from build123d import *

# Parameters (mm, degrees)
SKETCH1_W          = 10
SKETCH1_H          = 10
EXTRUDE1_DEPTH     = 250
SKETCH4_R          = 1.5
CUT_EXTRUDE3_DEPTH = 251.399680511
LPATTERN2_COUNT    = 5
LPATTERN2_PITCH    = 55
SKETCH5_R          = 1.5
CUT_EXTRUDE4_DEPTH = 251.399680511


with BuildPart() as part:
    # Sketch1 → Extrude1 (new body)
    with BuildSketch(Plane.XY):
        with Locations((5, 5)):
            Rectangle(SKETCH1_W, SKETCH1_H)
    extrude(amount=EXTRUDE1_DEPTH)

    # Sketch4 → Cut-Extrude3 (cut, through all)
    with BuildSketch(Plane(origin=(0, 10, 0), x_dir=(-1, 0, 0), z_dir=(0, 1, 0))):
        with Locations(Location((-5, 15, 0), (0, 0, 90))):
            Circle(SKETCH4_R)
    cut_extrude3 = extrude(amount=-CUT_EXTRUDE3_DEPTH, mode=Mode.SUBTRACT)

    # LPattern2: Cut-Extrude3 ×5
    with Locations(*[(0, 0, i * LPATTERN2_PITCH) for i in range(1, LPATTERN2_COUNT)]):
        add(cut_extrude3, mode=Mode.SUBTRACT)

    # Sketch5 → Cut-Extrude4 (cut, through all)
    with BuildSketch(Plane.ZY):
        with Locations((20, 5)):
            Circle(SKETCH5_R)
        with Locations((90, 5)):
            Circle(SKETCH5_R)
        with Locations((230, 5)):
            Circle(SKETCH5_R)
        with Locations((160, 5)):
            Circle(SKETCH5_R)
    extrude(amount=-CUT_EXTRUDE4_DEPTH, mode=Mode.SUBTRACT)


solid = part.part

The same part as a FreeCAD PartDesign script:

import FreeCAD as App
import Part
import Sketcher


def add_polygon(sketch, points):
    """Adds a closed chain of lines whose ends are joined by coincident constraints."""
    first, n = sketch.GeometryCount, len(points)
    for a, b in zip(points, points[1:] + points[:1]):
        sketch.addGeometry(Part.LineSegment(App.Vector(*a, 0), App.Vector(*b, 0)), False)
    for i in range(n):
        sketch.addConstraint(Sketcher.Constraint("Coincident", first + i, 2, first + (i + 1) % n, 1))

doc = App.newDocument("Part")
body = doc.addObject("PartDesign::Body", "Body")

sketch1 = doc.addObject("Sketcher::SketchObject", "Sketch")
body.addObject(sketch1)
sketch1.AttachmentSupport = (doc.XY_Plane, [""])
sketch1.MapMode = "FlatFace"
add_polygon(sketch1, [(0, 10), (0, 0), (10, 0), (10, 10)])
sketch1.addConstraint([
    Sketcher.Constraint("Vertical", 0),
    Sketcher.Constraint("Horizontal", 1),
    Sketcher.Constraint("Vertical", 2),
    Sketcher.Constraint("Horizontal", 3),
    Sketcher.Constraint("Coincident", 0, 2, -1, 1),
    Sketcher.Constraint("Equal", 3, 0),
    Sketcher.Constraint("DistanceX", 1, 1, 1, 2, 10.0),
])
pad1 = doc.addObject("PartDesign::Pad", "Pad")
body.addObject(pad1)
pad1.Profile = sketch1
pad1.Length = 250

sketch2 = doc.addObject("Sketcher::SketchObject", "Sketch001")
body.addObject(sketch2)
sketch2.AttachmentSupport = (doc.XZ_Plane, [""])
sketch2.MapMode = "FlatFace"
sketch2.AttachmentOffset = App.Placement(App.Vector(0, 0, -10), App.Rotation())
sketch2.addGeometry(Part.Circle(App.Vector(5, 15, 0), App.Vector(0, 0, 1), 1.5), False)
sketch2.addConstraint([
    Sketcher.Constraint("Diameter", 0, 3.0),
    Sketcher.Constraint("DistanceX", -1, 1, 0, 3, 5.0),
    Sketcher.Constraint("DistanceY", -1, 1, 0, 3, 15.0),
])
pocket1 = doc.addObject("PartDesign::Pocket", "Pocket")
body.addObject(pocket1)
pocket1.Profile = sketch2
pocket1.Type = "ThroughAll"
pocket1.Reversed = True
doc.recompute()

linearpattern = doc.addObject("PartDesign::LinearPattern", "LinearPattern")
body.addObject(linearpattern)
linearpattern.Originals = [pocket1]
linearpattern.Direction = (doc.Z_Axis, [""])
linearpattern.Mode = "offset"
linearpattern.Offset = 55
linearpattern.Occurrences = 5
body.Tip = linearpattern

sketch3 = doc.addObject("Sketcher::SketchObject", "Sketch002")
body.addObject(sketch3)
sketch3.AttachmentSupport = (doc.YZ_Plane, [""])
sketch3.MapMode = "FlatFace"
sketch3.addGeometry([
    Part.Circle(App.Vector(5, 20, 0), App.Vector(0, 0, 1), 1.5),
    Part.Circle(App.Vector(5, 90, 0), App.Vector(0, 0, 1), 1.5),
    Part.Circle(App.Vector(5, 230, 0), App.Vector(0, 0, 1), 1.5),
    Part.Circle(App.Vector(5, 160, 0), App.Vector(0, 0, 1), 1.5),
], False)
sketch3.addConstraint([
    Sketcher.Constraint("Equal", 0, 1),
    Sketcher.Constraint("Equal", 1, 2),
    Sketcher.Constraint("Equal", 2, 3),
    Sketcher.Constraint("Vertical", 0, 3, 1, 3),
    Sketcher.Constraint("Vertical", 1, 3, 2, 3),
    Sketcher.Constraint("Vertical", 2, 3, 3, 3),
    Sketcher.Constraint("Diameter", 0, 3.0),
    Sketcher.Constraint("DistanceX", -1, 1, 0, 3, 5.0),
    Sketcher.Constraint("DistanceY", -1, 1, 0, 3, 20.0),
    Sketcher.Constraint("DistanceY", -1, 1, 1, 3, 90.0),
    Sketcher.Constraint("DistanceY", -1, 1, 2, 3, 230.0),
    Sketcher.Constraint("DistanceY", -1, 1, 3, 3, 160.0),
])
pocket2 = doc.addObject("PartDesign::Pocket", "Pocket001")
body.addObject(pocket2)
pocket2.Profile = sketch3
pocket2.Type = "ThroughAll"
pocket2.Reversed = True

doc.recompute()
